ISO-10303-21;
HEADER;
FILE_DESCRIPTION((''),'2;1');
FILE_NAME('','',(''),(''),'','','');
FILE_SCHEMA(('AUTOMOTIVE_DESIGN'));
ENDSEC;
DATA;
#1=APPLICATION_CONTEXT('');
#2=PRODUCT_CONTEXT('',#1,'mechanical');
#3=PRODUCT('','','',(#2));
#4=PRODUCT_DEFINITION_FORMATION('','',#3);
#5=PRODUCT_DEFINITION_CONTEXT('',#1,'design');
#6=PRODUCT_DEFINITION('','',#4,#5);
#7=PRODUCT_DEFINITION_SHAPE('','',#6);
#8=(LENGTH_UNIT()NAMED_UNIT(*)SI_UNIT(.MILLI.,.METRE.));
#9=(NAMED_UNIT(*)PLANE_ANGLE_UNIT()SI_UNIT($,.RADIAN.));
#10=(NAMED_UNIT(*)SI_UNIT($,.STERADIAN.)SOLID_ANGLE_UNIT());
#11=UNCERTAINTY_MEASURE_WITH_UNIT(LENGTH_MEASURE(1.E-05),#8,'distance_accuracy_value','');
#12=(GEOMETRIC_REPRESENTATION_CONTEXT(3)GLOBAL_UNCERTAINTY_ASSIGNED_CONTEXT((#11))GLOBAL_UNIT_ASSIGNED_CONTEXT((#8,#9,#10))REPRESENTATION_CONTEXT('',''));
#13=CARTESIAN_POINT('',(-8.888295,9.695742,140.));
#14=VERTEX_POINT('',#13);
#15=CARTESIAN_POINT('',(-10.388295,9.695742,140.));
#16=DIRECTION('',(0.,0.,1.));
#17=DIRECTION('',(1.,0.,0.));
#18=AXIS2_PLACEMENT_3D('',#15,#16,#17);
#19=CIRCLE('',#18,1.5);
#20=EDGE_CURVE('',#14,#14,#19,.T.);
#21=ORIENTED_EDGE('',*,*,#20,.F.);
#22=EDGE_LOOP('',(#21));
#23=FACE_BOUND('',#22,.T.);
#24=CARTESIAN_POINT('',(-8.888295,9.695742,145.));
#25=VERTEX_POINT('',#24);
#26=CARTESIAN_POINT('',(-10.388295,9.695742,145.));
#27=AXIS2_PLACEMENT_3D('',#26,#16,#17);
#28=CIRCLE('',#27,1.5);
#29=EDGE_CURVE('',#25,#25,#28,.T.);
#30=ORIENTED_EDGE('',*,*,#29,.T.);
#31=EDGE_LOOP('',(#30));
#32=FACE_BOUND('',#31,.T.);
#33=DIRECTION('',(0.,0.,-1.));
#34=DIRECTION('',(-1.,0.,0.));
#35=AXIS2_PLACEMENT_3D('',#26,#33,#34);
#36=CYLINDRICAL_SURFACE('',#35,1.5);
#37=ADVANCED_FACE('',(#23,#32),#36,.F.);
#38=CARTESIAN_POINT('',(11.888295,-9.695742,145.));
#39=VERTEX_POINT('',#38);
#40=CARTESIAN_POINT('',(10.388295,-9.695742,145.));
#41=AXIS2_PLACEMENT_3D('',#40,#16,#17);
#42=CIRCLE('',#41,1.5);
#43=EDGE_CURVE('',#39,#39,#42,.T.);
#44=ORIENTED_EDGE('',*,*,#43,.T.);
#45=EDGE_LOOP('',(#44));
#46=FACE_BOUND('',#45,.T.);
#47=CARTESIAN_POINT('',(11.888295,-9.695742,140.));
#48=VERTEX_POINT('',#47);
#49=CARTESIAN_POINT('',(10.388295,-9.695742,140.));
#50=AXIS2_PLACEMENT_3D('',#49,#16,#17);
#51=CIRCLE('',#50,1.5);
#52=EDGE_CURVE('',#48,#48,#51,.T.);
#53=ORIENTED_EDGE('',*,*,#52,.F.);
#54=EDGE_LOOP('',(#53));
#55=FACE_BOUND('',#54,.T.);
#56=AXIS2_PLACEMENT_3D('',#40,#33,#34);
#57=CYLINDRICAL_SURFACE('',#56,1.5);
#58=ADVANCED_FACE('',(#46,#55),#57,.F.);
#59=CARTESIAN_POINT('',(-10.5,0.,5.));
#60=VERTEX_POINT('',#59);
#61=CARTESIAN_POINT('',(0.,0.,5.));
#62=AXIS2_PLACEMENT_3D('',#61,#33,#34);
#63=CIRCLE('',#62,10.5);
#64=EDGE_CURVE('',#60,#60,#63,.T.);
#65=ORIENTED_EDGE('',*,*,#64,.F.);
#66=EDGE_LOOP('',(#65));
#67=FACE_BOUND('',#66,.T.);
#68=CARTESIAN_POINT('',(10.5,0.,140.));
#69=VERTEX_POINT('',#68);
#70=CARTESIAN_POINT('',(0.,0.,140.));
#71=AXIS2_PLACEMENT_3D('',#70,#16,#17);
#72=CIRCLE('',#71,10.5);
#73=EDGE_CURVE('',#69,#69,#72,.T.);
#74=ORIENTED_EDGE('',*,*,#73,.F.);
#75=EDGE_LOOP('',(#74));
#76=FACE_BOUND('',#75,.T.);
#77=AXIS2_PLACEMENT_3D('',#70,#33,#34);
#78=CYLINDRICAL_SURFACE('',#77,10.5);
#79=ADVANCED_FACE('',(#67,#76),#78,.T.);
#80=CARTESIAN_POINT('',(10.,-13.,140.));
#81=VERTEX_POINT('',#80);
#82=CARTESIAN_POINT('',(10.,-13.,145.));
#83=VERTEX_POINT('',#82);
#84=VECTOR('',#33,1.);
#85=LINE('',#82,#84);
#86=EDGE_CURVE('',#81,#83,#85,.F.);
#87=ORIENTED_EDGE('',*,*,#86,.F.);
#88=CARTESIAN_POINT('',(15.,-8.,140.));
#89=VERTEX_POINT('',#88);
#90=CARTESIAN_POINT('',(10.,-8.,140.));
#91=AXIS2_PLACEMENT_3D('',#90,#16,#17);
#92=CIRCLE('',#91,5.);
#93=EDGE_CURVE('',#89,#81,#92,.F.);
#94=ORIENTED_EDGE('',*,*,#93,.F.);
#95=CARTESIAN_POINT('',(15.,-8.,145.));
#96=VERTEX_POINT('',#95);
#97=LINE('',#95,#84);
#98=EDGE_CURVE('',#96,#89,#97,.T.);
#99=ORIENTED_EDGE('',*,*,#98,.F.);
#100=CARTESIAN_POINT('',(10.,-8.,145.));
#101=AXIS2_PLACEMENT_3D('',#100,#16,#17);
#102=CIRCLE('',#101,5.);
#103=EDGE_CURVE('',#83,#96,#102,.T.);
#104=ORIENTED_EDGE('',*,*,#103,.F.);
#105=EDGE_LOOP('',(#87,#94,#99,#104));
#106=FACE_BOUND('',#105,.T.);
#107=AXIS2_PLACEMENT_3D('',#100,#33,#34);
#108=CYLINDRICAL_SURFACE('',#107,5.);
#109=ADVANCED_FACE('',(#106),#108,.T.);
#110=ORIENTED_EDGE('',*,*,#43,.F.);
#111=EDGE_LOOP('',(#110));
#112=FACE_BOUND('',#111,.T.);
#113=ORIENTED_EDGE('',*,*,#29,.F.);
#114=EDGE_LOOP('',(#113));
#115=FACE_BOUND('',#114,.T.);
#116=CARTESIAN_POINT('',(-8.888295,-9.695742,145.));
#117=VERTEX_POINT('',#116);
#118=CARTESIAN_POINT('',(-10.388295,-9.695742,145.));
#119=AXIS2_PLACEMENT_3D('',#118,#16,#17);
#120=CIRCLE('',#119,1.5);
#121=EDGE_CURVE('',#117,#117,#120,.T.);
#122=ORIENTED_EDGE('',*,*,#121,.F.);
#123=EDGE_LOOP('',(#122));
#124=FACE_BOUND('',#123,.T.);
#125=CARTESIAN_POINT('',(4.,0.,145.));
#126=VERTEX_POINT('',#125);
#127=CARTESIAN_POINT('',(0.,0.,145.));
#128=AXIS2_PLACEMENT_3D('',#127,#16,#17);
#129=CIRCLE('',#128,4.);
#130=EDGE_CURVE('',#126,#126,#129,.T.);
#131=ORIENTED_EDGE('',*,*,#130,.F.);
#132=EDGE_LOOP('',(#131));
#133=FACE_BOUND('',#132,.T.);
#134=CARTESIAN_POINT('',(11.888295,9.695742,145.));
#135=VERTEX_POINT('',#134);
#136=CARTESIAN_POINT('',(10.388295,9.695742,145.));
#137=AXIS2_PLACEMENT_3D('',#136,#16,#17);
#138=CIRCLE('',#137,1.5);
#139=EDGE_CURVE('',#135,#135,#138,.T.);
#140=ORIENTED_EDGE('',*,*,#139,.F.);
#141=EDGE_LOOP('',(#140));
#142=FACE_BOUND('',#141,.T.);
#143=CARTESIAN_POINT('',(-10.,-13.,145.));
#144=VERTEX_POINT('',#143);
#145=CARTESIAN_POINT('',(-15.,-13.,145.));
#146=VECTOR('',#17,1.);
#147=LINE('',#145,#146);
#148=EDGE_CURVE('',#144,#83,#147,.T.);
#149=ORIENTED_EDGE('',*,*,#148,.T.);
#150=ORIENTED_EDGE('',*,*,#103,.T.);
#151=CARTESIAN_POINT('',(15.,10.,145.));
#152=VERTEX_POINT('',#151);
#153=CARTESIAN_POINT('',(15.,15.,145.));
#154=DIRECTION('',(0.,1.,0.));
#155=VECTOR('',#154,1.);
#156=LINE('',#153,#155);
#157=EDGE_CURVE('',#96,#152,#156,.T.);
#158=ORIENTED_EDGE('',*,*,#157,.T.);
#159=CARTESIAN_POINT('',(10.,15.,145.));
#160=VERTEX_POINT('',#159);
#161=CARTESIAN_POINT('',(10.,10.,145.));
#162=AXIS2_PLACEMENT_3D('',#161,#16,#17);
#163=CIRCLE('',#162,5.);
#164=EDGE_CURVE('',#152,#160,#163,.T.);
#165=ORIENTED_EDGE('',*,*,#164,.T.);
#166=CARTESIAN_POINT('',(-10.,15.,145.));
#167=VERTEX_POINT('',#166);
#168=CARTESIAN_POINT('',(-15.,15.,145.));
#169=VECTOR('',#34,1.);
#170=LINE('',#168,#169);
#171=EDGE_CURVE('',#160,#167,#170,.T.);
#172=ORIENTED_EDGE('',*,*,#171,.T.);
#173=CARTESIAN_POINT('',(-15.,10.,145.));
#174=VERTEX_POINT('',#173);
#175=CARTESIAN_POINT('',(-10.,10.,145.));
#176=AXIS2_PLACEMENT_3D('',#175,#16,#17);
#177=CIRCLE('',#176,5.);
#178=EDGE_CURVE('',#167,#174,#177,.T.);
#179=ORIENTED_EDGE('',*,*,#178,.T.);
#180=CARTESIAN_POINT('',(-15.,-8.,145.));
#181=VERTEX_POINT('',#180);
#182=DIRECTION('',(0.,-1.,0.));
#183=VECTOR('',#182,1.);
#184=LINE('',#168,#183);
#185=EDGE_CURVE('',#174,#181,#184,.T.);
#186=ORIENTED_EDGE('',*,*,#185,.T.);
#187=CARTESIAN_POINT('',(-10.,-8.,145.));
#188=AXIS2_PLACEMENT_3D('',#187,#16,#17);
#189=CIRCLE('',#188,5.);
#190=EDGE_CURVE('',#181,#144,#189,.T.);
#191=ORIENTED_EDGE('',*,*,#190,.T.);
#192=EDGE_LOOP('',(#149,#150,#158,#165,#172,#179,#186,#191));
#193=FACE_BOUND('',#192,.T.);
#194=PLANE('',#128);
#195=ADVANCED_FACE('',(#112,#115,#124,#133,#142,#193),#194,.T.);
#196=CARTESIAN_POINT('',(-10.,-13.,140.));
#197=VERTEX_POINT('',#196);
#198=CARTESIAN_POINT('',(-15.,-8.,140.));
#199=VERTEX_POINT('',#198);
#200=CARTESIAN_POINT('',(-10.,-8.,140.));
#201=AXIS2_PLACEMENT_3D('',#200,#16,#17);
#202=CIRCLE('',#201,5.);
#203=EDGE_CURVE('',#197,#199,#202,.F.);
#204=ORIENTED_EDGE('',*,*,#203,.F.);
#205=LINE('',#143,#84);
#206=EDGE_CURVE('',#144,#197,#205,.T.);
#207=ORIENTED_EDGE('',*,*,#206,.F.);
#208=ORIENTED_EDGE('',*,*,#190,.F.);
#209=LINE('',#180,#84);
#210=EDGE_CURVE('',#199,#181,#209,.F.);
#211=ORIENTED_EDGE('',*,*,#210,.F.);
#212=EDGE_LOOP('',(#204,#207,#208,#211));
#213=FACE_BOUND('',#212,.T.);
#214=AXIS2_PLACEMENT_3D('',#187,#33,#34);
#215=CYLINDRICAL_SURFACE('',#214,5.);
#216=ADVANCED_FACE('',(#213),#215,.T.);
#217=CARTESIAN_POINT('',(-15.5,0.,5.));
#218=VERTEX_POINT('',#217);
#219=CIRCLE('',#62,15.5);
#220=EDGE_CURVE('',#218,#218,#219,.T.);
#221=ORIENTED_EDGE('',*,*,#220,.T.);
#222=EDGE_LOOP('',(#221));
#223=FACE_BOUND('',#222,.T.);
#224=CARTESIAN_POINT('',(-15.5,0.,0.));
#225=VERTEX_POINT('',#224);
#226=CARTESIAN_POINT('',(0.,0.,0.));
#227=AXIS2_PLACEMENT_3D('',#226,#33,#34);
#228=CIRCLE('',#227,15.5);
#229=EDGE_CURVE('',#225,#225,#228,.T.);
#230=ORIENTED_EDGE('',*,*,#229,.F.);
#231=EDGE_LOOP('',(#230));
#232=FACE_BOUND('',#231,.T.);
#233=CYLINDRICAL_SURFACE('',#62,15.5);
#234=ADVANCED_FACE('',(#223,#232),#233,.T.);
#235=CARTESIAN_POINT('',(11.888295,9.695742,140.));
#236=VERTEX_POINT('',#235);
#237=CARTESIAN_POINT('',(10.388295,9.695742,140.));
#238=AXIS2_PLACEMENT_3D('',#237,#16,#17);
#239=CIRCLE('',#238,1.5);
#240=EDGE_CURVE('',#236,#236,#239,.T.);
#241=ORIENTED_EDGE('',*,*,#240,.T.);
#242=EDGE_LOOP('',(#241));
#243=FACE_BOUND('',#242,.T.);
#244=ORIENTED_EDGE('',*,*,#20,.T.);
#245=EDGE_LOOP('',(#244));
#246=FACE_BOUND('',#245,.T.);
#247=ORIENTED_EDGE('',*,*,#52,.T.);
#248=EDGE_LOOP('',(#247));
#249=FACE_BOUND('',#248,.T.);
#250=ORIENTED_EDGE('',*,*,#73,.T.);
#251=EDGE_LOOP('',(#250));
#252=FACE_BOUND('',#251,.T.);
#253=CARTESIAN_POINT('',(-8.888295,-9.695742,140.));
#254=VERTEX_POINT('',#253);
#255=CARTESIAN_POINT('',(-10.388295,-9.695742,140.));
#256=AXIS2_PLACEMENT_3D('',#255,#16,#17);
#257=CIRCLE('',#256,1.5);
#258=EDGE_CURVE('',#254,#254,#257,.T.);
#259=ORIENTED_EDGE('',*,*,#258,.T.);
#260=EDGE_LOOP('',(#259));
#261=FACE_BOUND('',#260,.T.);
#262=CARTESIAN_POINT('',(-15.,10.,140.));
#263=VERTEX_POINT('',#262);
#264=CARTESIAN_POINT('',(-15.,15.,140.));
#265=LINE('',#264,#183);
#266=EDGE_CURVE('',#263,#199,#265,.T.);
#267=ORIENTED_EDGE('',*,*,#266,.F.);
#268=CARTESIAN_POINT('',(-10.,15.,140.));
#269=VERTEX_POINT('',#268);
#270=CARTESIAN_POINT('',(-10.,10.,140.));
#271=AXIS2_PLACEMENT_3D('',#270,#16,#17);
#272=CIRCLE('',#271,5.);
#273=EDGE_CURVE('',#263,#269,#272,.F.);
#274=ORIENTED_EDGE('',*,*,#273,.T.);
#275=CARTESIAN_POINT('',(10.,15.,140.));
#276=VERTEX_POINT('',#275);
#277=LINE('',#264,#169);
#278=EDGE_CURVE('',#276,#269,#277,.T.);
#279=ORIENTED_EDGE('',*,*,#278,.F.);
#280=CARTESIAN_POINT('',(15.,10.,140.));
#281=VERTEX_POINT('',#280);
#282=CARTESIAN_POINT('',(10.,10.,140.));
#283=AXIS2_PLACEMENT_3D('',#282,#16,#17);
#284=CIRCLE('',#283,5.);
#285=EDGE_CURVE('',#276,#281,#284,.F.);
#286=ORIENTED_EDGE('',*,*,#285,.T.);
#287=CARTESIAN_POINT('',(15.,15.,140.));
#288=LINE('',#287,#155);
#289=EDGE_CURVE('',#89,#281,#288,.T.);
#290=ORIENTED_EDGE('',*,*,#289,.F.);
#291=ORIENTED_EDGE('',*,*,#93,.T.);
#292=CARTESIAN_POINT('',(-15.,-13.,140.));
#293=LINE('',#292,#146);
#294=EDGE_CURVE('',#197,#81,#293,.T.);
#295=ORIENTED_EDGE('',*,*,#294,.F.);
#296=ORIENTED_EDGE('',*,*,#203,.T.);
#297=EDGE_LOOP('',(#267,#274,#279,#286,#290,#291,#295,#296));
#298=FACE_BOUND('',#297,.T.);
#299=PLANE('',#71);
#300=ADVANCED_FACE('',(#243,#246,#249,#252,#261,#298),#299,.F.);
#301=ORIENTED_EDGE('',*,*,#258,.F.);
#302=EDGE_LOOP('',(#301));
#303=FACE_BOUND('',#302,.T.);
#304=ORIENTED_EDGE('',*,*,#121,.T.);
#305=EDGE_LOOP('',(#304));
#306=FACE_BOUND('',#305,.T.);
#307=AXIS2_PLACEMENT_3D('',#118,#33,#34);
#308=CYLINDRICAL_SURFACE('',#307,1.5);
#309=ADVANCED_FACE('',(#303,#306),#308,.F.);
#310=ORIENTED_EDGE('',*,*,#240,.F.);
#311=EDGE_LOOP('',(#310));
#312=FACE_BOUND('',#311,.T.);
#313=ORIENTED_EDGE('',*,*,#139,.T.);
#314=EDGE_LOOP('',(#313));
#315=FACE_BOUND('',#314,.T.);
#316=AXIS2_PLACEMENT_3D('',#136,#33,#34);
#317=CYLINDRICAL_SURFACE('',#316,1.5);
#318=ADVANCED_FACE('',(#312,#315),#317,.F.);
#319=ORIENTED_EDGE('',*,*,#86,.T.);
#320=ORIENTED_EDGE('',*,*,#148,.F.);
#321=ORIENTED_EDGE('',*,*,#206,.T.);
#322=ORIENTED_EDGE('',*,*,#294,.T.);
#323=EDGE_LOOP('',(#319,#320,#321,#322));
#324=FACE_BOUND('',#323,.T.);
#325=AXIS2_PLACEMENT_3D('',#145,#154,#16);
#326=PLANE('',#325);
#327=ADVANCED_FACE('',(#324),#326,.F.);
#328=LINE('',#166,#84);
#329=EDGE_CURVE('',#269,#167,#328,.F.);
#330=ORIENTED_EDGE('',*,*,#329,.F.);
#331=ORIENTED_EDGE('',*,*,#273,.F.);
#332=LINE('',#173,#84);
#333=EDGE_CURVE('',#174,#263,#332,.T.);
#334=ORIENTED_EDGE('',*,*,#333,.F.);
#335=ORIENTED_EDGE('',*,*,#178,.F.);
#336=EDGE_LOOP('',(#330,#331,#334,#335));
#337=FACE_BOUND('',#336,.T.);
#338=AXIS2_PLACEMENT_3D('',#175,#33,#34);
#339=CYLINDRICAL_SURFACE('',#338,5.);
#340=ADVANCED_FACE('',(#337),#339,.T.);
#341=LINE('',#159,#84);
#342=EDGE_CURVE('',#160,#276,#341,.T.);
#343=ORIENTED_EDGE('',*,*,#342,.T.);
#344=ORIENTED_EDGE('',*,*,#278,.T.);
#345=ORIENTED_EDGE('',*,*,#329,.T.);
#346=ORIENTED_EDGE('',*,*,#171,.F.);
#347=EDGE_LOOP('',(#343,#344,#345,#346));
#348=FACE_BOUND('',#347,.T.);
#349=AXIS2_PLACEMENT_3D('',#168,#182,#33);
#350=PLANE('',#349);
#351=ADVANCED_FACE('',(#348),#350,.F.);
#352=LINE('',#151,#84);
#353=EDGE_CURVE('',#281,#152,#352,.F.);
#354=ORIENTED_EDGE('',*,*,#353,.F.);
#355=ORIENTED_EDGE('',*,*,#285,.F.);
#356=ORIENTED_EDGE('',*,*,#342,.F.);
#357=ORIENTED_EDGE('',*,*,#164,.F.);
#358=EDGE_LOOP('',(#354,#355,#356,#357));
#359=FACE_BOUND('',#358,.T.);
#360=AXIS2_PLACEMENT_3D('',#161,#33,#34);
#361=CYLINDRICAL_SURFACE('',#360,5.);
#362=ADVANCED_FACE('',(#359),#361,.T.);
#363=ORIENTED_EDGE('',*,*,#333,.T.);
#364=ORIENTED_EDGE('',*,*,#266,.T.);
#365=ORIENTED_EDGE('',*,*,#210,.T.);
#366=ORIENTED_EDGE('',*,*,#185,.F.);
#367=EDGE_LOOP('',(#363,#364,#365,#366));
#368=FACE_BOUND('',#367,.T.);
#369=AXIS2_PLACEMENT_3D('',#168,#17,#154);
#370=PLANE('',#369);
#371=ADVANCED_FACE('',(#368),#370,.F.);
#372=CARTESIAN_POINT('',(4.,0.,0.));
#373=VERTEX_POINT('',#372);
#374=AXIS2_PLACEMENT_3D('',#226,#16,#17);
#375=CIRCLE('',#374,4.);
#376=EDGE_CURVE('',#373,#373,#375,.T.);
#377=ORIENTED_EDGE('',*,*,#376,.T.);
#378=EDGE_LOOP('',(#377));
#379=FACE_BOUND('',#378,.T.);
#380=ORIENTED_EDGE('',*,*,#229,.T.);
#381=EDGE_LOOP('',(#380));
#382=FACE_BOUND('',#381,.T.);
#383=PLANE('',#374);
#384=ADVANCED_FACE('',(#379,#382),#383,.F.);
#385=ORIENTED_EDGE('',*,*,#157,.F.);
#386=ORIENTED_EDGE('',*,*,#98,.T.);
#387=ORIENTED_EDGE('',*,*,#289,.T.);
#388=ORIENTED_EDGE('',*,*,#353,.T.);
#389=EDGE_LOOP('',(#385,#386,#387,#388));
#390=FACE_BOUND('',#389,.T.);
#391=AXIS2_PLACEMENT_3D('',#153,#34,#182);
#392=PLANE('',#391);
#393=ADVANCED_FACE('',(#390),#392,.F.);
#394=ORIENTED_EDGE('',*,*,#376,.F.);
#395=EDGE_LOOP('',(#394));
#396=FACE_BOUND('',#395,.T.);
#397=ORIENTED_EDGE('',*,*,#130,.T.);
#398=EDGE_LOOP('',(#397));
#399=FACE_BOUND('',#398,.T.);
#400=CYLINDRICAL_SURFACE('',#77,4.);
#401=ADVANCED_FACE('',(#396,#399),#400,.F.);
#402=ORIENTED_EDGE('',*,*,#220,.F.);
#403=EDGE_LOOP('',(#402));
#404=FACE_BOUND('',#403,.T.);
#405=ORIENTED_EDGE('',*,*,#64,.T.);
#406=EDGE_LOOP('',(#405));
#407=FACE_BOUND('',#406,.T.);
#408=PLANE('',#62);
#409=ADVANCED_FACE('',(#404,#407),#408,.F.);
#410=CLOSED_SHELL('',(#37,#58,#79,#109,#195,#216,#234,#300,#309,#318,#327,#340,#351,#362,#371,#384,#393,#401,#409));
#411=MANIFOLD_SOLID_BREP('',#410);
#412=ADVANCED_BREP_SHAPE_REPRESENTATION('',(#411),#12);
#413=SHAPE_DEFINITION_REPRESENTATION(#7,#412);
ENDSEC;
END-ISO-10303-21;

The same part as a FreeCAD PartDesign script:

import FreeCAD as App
import Part
import Sketcher
Q = App.Units.Quantity


def edges_at(feature, points):
    """Names of the edges that pass closest to the given points."""
    edges = feature.Shape.Edges
    near = lambda p: min(range(len(edges)), key=lambda i: edges[i].distToShape(Part.Vertex(*p))[0])
    return sorted({f"Edge{near(p) + 1}" for p in points})

doc = App.newDocument("Part")
body = doc.addObject("PartDesign::Body", "Body")

# Sketch on XY plane
sketch1 = body.newObject("Sketcher::SketchObject", "Sketch")
sketch1.AttachmentSupport = (doc.getObject("XY_Plane"), [""])
sketch1.MapMode = "FlatFace"
sketch1.addGeometry([
    Part.Circle(App.Vector(0, 0, 0), App.Vector(0, 0, 1), 10.5),
    Part.Circle(App.Vector(0, 0, 0), App.Vector(0, 0, 1), 4),
], False)
sketch1.addConstraint([
    Sketcher.Constraint("Coincident", 0, 3, -1, 1),
    Sketcher.Constraint("Coincident", 1, 3, -1, 1),
    Sketcher.Constraint("Diameter", 0, Q("21 mm")),
    Sketcher.Constraint("Diameter", 1, Q("8 mm")),
])
pad1 = body.newObject("PartDesign::Pad", "Pad")
pad1.Profile = sketch1
pad1.Length = 140

# Sketch on XY plane
sketch2 = body.newObject("Sketcher::SketchObject", "Sketch001")
sketch2.AttachmentSupport = (doc.getObject("XY_Plane"), [""])
sketch2.MapMode = "FlatFace"
sketch2.AttachmentOffset = App.Placement(App.Vector(0, 0, 140), App.Rotation())
sketch2.addGeometry([
    Part.LineSegment(App.Vector(-15, 15, 0), App.Vector(-15, -13, 0)),  # 0
    Part.LineSegment(App.Vector(-15, -13, 0), App.Vector(15, -13, 0)),  # 1
    Part.LineSegment(App.Vector(15, -13, 0), App.Vector(15, 15, 0)),  # 2
    Part.LineSegment(App.Vector(15, 15, 0), App.Vector(-15, 15, 0)),  # 3
    Part.Circle(App.Vector(-10.388295, -9.695742, 0), App.Vector(0, 0, 1), 1.5),  # 4
    Part.Circle(App.Vector(10.388295, -9.695742, 0), App.Vector(0, 0, 1), 1.5),  # 5
    Part.Circle(App.Vector(-10.388295, 9.695742, 0), App.Vector(0, 0, 1), 1.5),  # 6
    Part.Circle(App.Vector(0, 0, 0), App.Vector(0, 0, 1), 4),  # 7
    Part.Circle(App.Vector(10.388295, 9.695742, 0), App.Vector(0, 0, 1), 1.5),  # 8
], False)
sketch2.addConstraint([
    Sketcher.Constraint("Coincident", 0, 2, 1, 1),
    Sketcher.Constraint("Coincident", 1, 2, 2, 1),
    Sketcher.Constraint("Coincident", 2, 2, 3, 1),
    Sketcher.Constraint("Coincident", 3, 2, 0, 1),
    Sketcher.Constraint("Vertical", 0),
    Sketcher.Constraint("Horizontal", 1),
    Sketcher.Constraint("Vertical", 2),
    Sketcher.Constraint("Horizontal", 3),
    Sketcher.Constraint("Coincident", 7, 3, -1, 1),
    Sketcher.Constraint("Equal", 4, 5),
    Sketcher.Constraint("Equal", 5, 6),
    Sketcher.Constraint("Equal", 6, 8),
    Sketcher.Constraint("Symmetric", 5, 3, 6, 3, -1, 1),
    Sketcher.Constraint("Symmetric", 4, 3, 8, 3, -1, 1),
    Sketcher.Constraint("Symmetric", 4, 3, 5, 3, -2),
    Sketcher.Constraint("Diameter", 4, Q("3 mm")),
    Sketcher.Constraint("Diameter", 7, Q("8 mm")),
    Sketcher.Constraint("DistanceX", 1, 1, 1, 2, Q("30 mm")),
    Sketcher.Constraint("DistanceY", 0, 2, 0, 1, Q("28 mm")),
    Sketcher.Constraint("DistanceX", 0, 2, -1, 1, Q("15 mm")),
    Sketcher.Constraint("DistanceY", 0, 2, -1, 1, Q("13 mm")),
    Sketcher.Constraint("DistanceX", 4, 3, 5, 3, Q("20.776591 mm")),
    Sketcher.Constraint("DistanceY", 4, 3, -1, 1, Q("9.695742 mm")),
])
pad2 = body.newObject("PartDesign::Pad", "Pad001")
pad2.Profile = sketch2
pad2.Length = 5
doc.recompute()

fillet = body.newObject("PartDesign::Fillet", "Fillet")
fillet.Base = (pad2, edges_at(pad2, [
    (15, -13, 142.5),
    (15, 15, 142.5),
    (-15, 15, 142.5),
    (-15, -13, 142.5),
]))
fillet.Radius = 5

# Sketch on XY plane
sketch3 = body.newObject("Sketcher::SketchObject", "Sketch002")
sketch3.AttachmentSupport = (doc.getObject("XY_Plane"), [""])
sketch3.MapMode = "FlatFace"
sketch3.addGeometry([
    Part.Circle(App.Vector(0, 0, 0), App.Vector(0, 0, 1), 15.5),
    Part.Circle(App.Vector(0, 0, 0), App.Vector(0, 0, 1), 10.5),
], False)
sketch3.addConstraint([
    Sketcher.Constraint("Coincident", 0, 3, -1, 1),
    Sketcher.Constraint("Coincident", 1, 3, -1, 1),
    Sketcher.Constraint("Diameter", 0, Q("31 mm")),
    Sketcher.Constraint("Diameter", 1, Q("21 mm")),
])
pad3 = body.newObject("PartDesign::Pad", "Pad002")
pad3.Profile = sketch3
pad3.Length = 5

doc.recompute()
